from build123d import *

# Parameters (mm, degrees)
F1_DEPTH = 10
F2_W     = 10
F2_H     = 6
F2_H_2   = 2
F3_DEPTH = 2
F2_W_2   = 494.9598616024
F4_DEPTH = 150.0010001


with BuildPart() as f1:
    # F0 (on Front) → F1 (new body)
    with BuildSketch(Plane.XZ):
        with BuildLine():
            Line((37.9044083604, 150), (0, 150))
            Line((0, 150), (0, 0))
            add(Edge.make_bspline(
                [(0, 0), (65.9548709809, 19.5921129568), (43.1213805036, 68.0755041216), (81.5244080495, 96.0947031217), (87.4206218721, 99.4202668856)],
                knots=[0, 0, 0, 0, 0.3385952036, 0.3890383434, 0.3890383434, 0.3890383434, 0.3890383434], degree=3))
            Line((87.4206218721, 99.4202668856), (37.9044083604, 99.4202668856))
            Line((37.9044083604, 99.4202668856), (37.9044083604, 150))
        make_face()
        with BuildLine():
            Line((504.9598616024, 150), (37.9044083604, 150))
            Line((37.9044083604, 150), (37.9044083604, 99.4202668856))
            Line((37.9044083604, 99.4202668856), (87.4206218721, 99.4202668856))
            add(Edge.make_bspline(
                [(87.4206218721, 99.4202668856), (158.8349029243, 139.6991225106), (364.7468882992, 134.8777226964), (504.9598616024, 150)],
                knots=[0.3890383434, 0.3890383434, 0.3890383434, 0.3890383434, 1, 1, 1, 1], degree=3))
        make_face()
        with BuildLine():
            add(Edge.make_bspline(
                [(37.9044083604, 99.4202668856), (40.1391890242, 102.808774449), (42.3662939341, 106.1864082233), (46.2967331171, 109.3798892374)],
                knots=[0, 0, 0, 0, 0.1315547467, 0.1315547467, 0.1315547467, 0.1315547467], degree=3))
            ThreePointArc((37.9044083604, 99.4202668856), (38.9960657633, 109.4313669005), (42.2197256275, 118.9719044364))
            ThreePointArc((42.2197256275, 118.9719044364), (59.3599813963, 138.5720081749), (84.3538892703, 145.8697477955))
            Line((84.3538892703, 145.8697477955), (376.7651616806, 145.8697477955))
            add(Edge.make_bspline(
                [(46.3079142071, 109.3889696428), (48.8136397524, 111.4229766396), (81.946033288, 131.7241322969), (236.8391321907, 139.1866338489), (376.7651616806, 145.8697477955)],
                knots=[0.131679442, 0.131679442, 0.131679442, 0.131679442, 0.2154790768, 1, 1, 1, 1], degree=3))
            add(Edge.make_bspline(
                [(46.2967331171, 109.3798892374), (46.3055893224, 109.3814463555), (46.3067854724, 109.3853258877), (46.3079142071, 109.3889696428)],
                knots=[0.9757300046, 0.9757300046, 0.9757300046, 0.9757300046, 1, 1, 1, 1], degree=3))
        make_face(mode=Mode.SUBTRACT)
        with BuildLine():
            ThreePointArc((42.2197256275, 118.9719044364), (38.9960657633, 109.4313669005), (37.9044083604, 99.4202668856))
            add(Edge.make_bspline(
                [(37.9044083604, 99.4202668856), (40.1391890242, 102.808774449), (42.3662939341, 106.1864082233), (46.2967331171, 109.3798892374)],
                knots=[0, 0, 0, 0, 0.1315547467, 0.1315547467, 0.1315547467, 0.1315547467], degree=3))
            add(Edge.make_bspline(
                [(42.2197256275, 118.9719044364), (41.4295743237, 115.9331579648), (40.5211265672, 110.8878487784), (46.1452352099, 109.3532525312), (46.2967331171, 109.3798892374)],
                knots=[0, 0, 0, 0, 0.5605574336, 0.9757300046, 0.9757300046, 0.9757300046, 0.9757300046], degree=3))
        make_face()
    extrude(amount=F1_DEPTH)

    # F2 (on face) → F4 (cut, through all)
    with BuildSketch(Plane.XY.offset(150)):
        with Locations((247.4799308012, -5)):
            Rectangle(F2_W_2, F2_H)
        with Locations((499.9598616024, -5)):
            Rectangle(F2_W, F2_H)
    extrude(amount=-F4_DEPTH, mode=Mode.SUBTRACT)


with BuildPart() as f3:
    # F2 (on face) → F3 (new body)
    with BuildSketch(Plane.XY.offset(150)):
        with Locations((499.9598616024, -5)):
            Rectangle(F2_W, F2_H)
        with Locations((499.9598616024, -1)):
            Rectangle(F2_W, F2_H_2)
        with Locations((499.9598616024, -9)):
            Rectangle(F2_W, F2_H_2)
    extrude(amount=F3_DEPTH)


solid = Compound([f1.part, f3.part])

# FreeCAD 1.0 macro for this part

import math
import FreeCAD as App
import Part
import Sketcher

V = App.Vector

doc = App.newDocument("Part")
body = doc.addObject("PartDesign::Body", "Body")
body.AllowCompound = True

# Sketch on XZ plane
sketch1 = body.newObject("Sketcher::SketchObject", "Sketch")
sketch1.AttachmentSupport = (doc.getObject("XZ_Plane"), [""])
sketch1.MapMode = "FlatFace"
sketch1.addGeometry(Part.LineSegment(V(0, 150, 0), V(0, 0, 0)), False)
sketch1.addGeometry(Part.BSplineCurve([V(0, 0, 0), V(65.954871, 19.592113, 0), V(43.121381, 68.075504, 0), V(81.524408, 96.094703, 0), V(87.420622, 99.420267, 0)], [4, 1, 4], [0, 0.338595204, 0.389038343], False, 3, [1, 1, 1, 1, 1], False), False)
sketch1.addGeometry(Part.BSplineCurve([V(87.420622, 99.420267, 0), V(158.834903, 139.699123, 0), V(364.746888, 134.877723, 0), V(504.959862, 150, 0)], [4, 4], [0.389038343, 1], False, 3, [1, 1, 1, 1], False), False)
sketch1.addGeometry(Part.LineSegment(V(504.959862, 150, 0), V(0, 150, 0)), False)
sketch1.addGeometry(Part.BSplineCurve([V(46.296733, 109.379889, 0), V(46.305589, 109.381446, 0), V(46.306785, 109.385326, 0), V(46.307914, 109.38897, 0)], [4, 4], [0.975730005, 1], False, 3, [1, 1, 1, 1], False), False)
sketch1.addGeometry(Part.BSplineCurve([V(42.219726, 118.971904, 0), V(41.429574, 115.933158, 0), V(40.521127, 110.887849, 0), V(46.145235, 109.353253, 0), V(46.296733, 109.379889, 0)], [4, 1, 4], [0, 0.560557434, 0.975730005], False, 3, [1, 1, 1, 1, 1], False), False)
sketch1.addGeometry(Part.ArcOfCircle(Part.Circle(V(84.353889, 99.420267, 0), V(0, 0, 1), 46.449481), math.radians(90), math.radians(155.107149)), False)
sketch1.addGeometry(Part.LineSegment(V(84.353889, 145.869748, 0), V(376.765162, 145.869748, 0)), False)
sketch1.addGeometry(Part.BSplineCurve([V(46.307914, 109.38897, 0), V(48.81364, 111.422977, 0), V(81.946033, 131.724132, 0), V(236.839132, 139.186634, 0), V(376.765162, 145.869748, 0)], [4, 1, 4], [0.131679442, 0.215479077, 1], False, 3, [1, 1, 1, 1, 1], False), False)
sketch1.addConstraint(Sketcher.Constraint("Block", 1))
sketch1.addConstraint(Sketcher.Constraint("Block", 2))
sketch1.addConstraint(Sketcher.Constraint("Block", 4))
sketch1.addConstraint(Sketcher.Constraint("Block", 5))
sketch1.addConstraint(Sketcher.Constraint("Block", 8))
sketch1.addConstraint(Sketcher.Constraint("Coincident", 0, 2, 1, 1))
sketch1.addConstraint(Sketcher.Constraint("Coincident", 2, 2, 3, 1))
sketch1.addConstraint(Sketcher.Constraint("Coincident", 3, 2, 0, 1))
sketch1.addConstraint(Sketcher.Constraint("Coincident", 5, 1, 6, 2))
sketch1.addConstraint(Sketcher.Constraint("Tangent", 6, 1, 7, 1))
sketch1.addConstraint(Sketcher.Constraint("Coincident", 7, 2, 8, 2))
sketch1.addConstraint(Sketcher.Constraint("Vertical", 0))
sketch1.addConstraint(Sketcher.Constraint("Horizontal", 3))
sketch1.addConstraint(Sketcher.Constraint("Horizontal", 7))
sketch1.addConstraint(Sketcher.Constraint("Radius", 6, 46.449481))
pad1 = body.newObject("PartDesign::Pad", "Pad")
pad1.Profile = sketch1
pad1.Length = 10

# Sketch on XY plane
sketch2 = body.newObject("Sketcher::SketchObject", "Sketch001")
sketch2.AttachmentSupport = (doc.getObject("XY_Plane"), [""])
sketch2.MapMode = "FlatFace"
sketch2.AttachmentOffset = App.Placement(V(0, 0, 150), App.Rotation())
sketch2.addGeometry(Part.LineSegment(V(0, -2, 0), V(0, -8, 0)), False)
sketch2.addGeometry(Part.LineSegment(V(0, -8, 0), V(504.959862, -8, 0)), False)
sketch2.addGeometry(Part.LineSegment(V(504.959862, -8, 0), V(504.959862, -2, 0)), False)
sketch2.addGeometry(Part.LineSegment(V(504.959862, -2, 0), V(0, -2, 0)), False)
sketch2.addConstraint(Sketcher.Constraint("Coincident", 0, 2, 1, 1))
sketch2.addConstraint(Sketcher.Constraint("Coincident", 1, 2, 2, 1))
sketch2.addConstraint(Sketcher.Constraint("Coincident", 2, 2, 3, 1))
sketch2.addConstraint(Sketcher.Constraint("Coincident", 3, 2, 0, 1))
sketch2.addConstraint(Sketcher.Constraint("Vertical", 0))
sketch2.addConstraint(Sketcher.Constraint("Horizontal", 1))
sketch2.addConstraint(Sketcher.Constraint("Vertical", 2))
sketch2.addConstraint(Sketcher.Constraint("Horizontal", 3))
sketch2.addConstraint(Sketcher.Constraint("PointOnObject", 0, 2, -2))
sketch2.addConstraint(Sketcher.Constraint("DistanceY", 0, 2, 0, 1, 6.0))
sketch2.addConstraint(Sketcher.Constraint("DistanceY", 0, 2, -1, 1, 8.0))
sketch2.addConstraint(Sketcher.Constraint("DistanceX", 1, 1, 1, 2, 504.959862))
pocket1 = body.newObject("PartDesign::Pocket", "Pocket")
pocket1.Profile = sketch2
pocket1.Type = "ThroughAll"
body2 = doc.addObject("PartDesign::Body", "Body001")

# Sketch on XY plane
sketch3 = body2.newObject("Sketcher::SketchObject", "Sketch002")
sketch3.AttachmentSupport = (doc.getObject("XY_Plane001"), [""])
sketch3.MapMode = "FlatFace"
sketch3.AttachmentOffset = App.Placement(V(0, 0, 150), App.Rotation())
sketch3.addGeometry(Part.LineSegment(V(504.959862, 0, 0), V(494.959862, 0, 0)), False)
sketch3.addGeometry(Part.LineSegment(V(494.959862, 0, 0), V(494.959862, -10, 0)), False)
sketch3.addGeometry(Part.LineSegment(V(494.959862, -10, 0), V(504.959862, -10, 0)), False)
sketch3.addGeometry(Part.LineSegment(V(504.959862, -10, 0), V(504.959862, 0, 0)), False)
sketch3.addConstraint(Sketcher.Constraint("Coincident", 0, 2, 1, 1))
sketch3.addConstraint(Sketcher.Constraint("Coincident", 1, 2, 2, 1))
sketch3.addConstraint(Sketcher.Constraint("Coincident", 2, 2, 3, 1))
sketch3.addConstraint(Sketcher.Constraint("Coincident", 3, 2, 0, 1))
sketch3.addConstraint(Sketcher.Constraint("Horizontal", 0))
sketch3.addConstraint(Sketcher.Constraint("Vertical", 1))
sketch3.addConstraint(Sketcher.Constraint("Horizontal", 2))
sketch3.addConstraint(Sketcher.Constraint("Vertical", 3))
sketch3.addConstraint(Sketcher.Constraint("PointOnObject", 0, 2, -1))
sketch3.addConstraint(Sketcher.Constraint("Equal", 2, 1))
sketch3.addConstraint(Sketcher.Constraint("DistanceX", 0, 2, 0, 1, 10.0))
sketch3.addConstraint(Sketcher.Constraint("DistanceX", -1, 1, 0, 2, 494.959862))
pad2 = body2.newObject("PartDesign::Pad", "Pad001")
pad2.Profile = sketch3
pad2.Length = 2

doc.recompute()
